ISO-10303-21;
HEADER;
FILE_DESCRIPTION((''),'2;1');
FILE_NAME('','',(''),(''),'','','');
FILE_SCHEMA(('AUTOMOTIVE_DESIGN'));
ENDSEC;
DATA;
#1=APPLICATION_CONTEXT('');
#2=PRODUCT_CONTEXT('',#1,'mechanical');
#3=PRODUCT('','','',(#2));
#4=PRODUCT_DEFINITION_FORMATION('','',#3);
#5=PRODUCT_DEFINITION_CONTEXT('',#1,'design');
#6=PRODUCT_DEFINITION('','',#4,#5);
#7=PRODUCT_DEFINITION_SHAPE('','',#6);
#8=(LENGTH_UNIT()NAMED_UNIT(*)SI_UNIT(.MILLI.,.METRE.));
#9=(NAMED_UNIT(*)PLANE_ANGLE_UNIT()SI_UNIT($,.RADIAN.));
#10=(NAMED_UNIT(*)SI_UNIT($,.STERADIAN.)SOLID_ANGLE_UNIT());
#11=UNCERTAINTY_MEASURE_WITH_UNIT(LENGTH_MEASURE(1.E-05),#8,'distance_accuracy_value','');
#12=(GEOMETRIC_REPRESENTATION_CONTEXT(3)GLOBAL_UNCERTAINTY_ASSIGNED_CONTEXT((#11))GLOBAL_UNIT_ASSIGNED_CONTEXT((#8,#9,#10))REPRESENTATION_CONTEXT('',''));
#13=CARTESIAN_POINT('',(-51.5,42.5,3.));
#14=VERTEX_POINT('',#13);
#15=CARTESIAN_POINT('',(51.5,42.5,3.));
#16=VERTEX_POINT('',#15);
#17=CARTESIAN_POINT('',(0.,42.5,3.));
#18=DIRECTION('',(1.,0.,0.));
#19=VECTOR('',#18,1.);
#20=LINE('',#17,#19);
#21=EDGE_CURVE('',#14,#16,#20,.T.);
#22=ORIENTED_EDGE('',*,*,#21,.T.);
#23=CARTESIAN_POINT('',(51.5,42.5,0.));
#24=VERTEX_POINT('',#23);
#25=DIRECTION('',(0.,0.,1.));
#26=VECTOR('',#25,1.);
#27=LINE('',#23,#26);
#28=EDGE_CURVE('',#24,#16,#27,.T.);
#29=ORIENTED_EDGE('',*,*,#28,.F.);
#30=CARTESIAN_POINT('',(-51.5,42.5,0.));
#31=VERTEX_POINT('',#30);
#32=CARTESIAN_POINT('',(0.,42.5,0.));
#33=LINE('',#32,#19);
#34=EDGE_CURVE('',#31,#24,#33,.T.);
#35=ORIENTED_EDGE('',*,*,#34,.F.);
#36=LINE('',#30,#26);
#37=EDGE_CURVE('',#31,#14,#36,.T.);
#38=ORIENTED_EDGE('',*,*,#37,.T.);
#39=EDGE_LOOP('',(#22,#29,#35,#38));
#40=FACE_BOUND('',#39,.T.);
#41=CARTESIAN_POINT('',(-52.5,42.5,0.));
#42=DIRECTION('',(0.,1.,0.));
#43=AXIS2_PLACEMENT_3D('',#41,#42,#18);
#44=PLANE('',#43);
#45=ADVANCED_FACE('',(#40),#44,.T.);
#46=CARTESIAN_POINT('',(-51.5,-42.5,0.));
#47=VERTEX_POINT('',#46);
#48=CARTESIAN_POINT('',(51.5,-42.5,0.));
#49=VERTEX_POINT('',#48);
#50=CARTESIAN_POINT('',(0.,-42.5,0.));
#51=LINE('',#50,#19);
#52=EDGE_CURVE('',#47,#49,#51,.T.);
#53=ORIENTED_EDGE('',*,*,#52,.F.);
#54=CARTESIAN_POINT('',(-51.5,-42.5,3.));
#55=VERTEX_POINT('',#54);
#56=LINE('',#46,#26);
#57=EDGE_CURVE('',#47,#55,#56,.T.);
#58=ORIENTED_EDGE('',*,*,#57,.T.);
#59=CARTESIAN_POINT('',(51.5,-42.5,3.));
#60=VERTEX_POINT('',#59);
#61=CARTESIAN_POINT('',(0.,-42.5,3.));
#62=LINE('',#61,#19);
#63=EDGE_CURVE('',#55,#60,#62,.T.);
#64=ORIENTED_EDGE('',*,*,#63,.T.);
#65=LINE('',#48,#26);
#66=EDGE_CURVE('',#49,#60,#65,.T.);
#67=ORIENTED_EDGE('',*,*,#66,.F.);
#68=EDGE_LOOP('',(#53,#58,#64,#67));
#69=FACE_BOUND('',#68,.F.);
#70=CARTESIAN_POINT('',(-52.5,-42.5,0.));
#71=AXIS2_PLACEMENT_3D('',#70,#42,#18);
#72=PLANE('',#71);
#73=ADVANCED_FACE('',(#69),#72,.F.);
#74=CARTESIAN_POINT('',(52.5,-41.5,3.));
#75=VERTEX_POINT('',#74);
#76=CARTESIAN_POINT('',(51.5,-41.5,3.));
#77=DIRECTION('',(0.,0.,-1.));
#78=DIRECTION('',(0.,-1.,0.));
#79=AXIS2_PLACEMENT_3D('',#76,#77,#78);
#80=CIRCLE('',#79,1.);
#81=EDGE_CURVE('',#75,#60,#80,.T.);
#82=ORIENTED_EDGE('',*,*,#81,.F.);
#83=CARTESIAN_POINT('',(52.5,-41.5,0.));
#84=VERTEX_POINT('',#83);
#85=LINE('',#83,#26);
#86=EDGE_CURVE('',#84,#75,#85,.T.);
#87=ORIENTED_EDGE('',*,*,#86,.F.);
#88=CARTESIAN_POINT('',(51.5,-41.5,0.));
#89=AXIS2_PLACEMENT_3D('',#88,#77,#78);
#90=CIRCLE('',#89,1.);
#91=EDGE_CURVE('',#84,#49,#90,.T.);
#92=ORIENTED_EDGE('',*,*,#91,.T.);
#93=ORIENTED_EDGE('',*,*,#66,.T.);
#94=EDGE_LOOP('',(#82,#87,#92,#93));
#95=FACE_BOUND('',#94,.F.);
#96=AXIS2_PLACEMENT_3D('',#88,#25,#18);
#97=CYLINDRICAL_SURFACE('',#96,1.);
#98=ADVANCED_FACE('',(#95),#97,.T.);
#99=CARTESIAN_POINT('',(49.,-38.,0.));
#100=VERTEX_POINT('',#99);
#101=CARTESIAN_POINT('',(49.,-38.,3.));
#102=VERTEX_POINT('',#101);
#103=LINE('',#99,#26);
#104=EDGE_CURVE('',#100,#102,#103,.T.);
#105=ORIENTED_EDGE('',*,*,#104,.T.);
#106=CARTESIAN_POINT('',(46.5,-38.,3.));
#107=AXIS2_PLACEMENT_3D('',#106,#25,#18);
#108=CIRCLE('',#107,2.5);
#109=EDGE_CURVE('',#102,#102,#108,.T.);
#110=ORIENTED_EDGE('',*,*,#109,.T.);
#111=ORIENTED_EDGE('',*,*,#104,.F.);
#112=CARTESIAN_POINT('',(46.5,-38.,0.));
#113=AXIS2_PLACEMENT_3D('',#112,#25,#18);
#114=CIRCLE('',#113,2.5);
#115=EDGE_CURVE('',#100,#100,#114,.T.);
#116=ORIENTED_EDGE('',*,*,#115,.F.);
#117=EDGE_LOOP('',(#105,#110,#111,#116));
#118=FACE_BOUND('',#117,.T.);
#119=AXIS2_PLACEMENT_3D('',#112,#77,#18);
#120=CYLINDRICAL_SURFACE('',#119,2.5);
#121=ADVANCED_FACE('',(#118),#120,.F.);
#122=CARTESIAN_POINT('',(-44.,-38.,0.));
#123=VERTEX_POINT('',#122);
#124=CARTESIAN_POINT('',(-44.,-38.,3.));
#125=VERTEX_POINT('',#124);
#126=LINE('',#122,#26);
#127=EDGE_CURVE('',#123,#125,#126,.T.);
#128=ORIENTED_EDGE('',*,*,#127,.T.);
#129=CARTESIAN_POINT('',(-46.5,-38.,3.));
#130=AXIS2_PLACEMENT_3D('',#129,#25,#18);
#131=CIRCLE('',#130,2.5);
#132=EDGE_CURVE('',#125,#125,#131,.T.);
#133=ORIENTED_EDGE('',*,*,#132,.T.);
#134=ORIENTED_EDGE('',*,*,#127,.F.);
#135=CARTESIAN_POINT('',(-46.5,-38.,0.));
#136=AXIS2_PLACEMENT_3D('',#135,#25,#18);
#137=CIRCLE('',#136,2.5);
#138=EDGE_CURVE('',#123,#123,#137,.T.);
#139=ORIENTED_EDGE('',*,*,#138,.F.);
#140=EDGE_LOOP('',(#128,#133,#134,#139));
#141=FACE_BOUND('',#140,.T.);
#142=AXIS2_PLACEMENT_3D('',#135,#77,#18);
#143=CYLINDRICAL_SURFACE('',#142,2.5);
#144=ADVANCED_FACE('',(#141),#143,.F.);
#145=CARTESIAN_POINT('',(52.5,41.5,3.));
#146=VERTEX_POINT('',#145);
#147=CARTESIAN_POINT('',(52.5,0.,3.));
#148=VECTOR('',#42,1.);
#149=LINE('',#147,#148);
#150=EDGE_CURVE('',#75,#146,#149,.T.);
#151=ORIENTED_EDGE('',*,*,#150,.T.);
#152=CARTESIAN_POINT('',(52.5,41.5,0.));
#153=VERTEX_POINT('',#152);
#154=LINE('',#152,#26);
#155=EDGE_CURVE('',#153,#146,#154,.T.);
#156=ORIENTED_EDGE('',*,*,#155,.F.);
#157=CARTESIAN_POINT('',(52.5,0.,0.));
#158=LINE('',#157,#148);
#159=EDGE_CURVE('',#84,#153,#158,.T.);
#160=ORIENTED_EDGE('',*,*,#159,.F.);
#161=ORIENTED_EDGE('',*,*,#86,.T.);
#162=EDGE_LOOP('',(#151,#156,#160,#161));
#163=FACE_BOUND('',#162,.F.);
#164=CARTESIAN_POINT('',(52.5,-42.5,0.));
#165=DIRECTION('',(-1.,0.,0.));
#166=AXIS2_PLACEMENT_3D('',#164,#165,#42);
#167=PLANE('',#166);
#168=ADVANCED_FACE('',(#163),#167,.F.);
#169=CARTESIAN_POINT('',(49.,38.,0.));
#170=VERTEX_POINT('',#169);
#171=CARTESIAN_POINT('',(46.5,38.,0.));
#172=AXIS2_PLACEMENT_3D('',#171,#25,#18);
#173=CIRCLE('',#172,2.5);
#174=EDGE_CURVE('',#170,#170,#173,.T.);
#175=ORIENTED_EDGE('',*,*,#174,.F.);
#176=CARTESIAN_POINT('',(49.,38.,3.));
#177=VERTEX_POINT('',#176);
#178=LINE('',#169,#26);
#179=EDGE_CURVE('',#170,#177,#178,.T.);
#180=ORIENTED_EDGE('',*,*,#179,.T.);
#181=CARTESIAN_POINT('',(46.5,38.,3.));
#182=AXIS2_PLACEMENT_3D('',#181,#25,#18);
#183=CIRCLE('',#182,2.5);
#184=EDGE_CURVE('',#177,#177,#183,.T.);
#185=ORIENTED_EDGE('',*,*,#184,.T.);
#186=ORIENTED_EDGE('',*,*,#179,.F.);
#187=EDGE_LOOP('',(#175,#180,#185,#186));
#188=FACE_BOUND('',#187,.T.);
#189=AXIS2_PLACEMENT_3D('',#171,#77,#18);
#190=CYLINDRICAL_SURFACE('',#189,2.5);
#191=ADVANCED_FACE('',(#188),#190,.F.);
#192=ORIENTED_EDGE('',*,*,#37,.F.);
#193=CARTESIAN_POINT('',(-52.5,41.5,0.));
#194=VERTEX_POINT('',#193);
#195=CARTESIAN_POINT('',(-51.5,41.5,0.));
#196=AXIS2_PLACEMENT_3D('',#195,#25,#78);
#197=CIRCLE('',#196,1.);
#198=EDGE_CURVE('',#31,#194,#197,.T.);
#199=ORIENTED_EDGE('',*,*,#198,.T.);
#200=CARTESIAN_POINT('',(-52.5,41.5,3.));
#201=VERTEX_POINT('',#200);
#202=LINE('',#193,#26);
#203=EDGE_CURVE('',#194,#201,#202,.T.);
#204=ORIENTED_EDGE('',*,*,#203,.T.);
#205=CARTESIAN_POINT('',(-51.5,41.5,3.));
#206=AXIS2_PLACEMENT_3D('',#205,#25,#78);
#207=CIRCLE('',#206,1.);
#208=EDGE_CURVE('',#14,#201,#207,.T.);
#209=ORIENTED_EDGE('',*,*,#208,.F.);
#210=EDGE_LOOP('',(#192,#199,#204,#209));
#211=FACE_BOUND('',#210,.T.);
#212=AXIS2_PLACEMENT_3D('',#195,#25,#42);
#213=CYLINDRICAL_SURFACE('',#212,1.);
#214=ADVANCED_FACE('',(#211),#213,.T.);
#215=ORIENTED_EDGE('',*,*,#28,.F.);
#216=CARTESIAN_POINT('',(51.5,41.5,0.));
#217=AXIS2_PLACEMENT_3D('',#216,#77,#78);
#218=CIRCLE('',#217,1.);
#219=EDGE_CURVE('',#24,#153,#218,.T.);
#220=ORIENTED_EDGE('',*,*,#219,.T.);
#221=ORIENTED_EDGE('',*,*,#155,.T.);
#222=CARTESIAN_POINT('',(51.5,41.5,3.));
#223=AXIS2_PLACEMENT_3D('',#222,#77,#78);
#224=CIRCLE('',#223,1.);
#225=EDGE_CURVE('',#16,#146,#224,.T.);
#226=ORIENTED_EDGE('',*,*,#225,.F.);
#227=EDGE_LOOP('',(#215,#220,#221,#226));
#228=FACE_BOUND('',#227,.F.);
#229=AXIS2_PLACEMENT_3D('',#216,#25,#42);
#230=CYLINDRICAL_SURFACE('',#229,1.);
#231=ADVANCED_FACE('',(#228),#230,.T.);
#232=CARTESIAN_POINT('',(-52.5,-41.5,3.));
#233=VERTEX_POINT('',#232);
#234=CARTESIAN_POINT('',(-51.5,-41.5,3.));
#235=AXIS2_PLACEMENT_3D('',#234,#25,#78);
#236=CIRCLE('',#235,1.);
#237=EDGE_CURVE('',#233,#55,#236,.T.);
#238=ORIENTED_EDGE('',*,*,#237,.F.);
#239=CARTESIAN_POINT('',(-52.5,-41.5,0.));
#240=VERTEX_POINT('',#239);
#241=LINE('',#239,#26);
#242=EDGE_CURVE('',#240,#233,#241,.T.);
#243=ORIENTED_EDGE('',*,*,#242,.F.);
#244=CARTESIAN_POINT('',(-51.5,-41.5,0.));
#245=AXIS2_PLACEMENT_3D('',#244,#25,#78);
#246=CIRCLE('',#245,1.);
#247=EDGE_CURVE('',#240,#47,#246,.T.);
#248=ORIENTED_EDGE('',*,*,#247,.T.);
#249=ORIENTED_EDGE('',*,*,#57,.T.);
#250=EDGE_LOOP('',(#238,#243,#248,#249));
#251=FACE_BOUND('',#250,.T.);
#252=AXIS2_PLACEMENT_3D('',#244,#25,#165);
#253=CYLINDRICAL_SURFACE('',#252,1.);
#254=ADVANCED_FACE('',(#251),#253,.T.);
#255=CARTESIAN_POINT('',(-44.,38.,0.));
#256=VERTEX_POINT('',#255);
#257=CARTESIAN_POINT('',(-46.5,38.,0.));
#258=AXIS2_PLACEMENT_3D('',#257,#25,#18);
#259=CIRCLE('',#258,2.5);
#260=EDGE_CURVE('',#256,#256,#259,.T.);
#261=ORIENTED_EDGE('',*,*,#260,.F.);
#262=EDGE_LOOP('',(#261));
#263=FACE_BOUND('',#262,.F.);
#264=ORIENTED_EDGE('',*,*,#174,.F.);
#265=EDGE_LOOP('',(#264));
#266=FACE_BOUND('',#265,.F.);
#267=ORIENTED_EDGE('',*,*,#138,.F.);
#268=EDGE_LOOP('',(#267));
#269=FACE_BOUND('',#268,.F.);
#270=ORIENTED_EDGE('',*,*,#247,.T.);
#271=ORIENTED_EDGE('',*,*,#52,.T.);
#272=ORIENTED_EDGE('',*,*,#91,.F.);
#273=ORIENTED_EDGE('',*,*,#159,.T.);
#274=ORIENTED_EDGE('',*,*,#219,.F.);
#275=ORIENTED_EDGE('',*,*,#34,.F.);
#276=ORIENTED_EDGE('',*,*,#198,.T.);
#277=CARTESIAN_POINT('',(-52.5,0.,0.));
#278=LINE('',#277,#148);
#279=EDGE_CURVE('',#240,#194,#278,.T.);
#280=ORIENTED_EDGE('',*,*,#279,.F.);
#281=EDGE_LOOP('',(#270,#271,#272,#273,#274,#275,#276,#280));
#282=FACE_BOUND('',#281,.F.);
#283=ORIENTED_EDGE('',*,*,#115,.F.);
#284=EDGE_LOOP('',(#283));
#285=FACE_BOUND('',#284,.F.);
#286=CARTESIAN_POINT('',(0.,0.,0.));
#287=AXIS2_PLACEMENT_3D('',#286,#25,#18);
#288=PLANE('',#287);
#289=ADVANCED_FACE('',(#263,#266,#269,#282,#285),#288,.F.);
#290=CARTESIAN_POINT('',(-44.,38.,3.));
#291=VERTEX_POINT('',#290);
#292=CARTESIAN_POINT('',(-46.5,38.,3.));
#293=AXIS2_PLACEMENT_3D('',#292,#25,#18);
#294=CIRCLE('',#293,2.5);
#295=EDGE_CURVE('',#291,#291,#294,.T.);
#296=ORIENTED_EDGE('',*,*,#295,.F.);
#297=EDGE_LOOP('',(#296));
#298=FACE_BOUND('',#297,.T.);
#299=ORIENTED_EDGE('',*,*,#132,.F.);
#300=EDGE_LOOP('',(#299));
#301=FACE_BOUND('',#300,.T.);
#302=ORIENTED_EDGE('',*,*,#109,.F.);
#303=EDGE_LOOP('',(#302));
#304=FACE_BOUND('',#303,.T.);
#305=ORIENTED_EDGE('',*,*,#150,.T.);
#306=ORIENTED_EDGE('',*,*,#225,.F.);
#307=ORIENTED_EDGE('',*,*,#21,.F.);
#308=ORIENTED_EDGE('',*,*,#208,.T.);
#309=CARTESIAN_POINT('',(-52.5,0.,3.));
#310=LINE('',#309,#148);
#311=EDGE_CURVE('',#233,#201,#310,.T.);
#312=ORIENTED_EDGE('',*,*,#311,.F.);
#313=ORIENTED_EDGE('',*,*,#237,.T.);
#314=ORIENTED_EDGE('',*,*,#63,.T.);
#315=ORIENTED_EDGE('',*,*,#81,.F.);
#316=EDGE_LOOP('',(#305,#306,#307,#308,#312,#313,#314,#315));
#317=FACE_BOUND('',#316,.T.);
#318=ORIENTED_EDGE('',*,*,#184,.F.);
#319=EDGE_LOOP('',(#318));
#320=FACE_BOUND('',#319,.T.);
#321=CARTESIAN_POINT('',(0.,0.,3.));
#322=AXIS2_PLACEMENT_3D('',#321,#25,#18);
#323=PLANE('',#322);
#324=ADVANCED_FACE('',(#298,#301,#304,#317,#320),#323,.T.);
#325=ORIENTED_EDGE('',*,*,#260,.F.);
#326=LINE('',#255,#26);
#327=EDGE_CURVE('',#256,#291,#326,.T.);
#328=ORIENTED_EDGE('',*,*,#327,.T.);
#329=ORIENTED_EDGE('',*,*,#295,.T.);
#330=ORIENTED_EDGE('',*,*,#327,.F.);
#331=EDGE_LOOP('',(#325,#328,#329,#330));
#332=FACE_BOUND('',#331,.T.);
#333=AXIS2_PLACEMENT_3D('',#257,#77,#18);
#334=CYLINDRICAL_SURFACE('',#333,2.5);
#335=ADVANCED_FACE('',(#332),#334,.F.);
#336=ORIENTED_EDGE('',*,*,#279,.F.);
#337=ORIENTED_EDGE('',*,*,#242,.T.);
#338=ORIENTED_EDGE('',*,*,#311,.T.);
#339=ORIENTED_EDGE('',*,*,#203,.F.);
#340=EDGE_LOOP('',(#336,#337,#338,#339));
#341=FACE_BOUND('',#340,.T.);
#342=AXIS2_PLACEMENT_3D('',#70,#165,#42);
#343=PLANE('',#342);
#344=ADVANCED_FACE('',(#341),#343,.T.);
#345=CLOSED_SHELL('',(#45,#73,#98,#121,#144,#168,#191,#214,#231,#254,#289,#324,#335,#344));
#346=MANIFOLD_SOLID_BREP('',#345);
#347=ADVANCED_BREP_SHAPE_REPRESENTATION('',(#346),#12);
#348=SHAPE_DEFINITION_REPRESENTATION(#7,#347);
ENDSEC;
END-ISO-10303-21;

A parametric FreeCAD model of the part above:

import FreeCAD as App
import Part
import Sketcher
Q = App.Units.Quantity


def edges_at(feature, points):
    """Names of the edges that pass closest to the given points."""
    edges = feature.Shape.Edges
    near = lambda p: min(range(len(edges)), key=lambda i: edges[i].distToShape(Part.Vertex(*p))[0])
    return sorted({f"Edge{near(p) + 1}" for p in points})

doc = App.newDocument("Part")
body = doc.addObject("PartDesign::Body", "Body")

sketch1 = body.newObject("Sketcher::SketchObject", "Sketch")
sketch1.AttachmentSupport = (doc.getObject("XY_Plane"), [""])
sketch1.MapMode = "FlatFace"
sketch1.addGeometry([
    Part.LineSegment(App.Vector(-52.5, 42.5, 0), App.Vector(-52.5, -42.5, 0)),
    Part.LineSegment(App.Vector(-52.5, -42.5, 0), App.Vector(52.5, -42.5, 0)),
    Part.LineSegment(App.Vector(52.5, -42.5, 0), App.Vector(52.5, 42.5, 0)),
    Part.LineSegment(App.Vector(52.5, 42.5, 0), App.Vector(-52.5, 42.5, 0)),
    Part.Circle(App.Vector(-46.5, -38, 0), App.Vector(0, 0, 1), 2.5),
    Part.Circle(App.Vector(46.5, -38, 0), App.Vector(0, 0, 1), 2.5),
    Part.Circle(App.Vector(-46.5, 38, 0), App.Vector(0, 0, 1), 2.5),
    Part.Circle(App.Vector(46.5, 38, 0), App.Vector(0, 0, 1), 2.5),
], False)
sketch1.addConstraint([
    Sketcher.Constraint("Coincident", 0, 2, 1, 1),
    Sketcher.Constraint("Coincident", 1, 2, 2, 1),
    Sketcher.Constraint("Coincident", 2, 2, 3, 1),
    Sketcher.Constraint("Coincident", 3, 2, 0, 1),
    Sketcher.Constraint("Vertical", 0),
    Sketcher.Constraint("Horizontal", 1),
    Sketcher.Constraint("Vertical", 2),
    Sketcher.Constraint("Horizontal", 3),
    Sketcher.Constraint("Equal", 4, 5),
    Sketcher.Constraint("Equal", 5, 6),
    Sketcher.Constraint("Equal", 6, 7),
    Sketcher.Constraint("Symmetric", 5, 3, 6, 3, -1, 1),
    Sketcher.Constraint("Symmetric", 4, 3, 7, 3, -1, 1),
    Sketcher.Constraint("Symmetric", 0, 2, 2, 2, -1, 1),
    Sketcher.Constraint("Symmetric", 4, 3, 5, 3, -2),
    Sketcher.Constraint("Diameter", 4, Q("5 mm")),
    Sketcher.Constraint("DistanceX", 1, 1, 1, 2, Q("105 mm")),
    Sketcher.Constraint("DistanceY", 0, 2, 0, 1, Q("85 mm")),
    Sketcher.Constraint("DistanceY", 4, 3, -1, 1, Q("38 mm")),
    Sketcher.Constraint("DistanceX", 4, 3, 5, 3, Q("93 mm")),
])
pad1 = body.newObject("PartDesign::Pad", "Pad")
pad1.Profile = sketch1
pad1.Length = 3
doc.recompute()

fillet = body.newObject("PartDesign::Fillet", "Fillet")
fillet.Base = (pad1, edges_at(pad1, [(52.5, 42.5, 1.5)]))
fillet.Radius = 1
doc.recompute()

fillet2 = body.newObject("PartDesign::Fillet", "Fillet001")
fillet2.Base = (fillet, edges_at(fillet, [(-52.5, 42.5, 1.5), (52.5, -42.5, 1.5), (-52.5, -42.5, 1.5)]))
fillet2.Radius = 1

doc.recompute()
